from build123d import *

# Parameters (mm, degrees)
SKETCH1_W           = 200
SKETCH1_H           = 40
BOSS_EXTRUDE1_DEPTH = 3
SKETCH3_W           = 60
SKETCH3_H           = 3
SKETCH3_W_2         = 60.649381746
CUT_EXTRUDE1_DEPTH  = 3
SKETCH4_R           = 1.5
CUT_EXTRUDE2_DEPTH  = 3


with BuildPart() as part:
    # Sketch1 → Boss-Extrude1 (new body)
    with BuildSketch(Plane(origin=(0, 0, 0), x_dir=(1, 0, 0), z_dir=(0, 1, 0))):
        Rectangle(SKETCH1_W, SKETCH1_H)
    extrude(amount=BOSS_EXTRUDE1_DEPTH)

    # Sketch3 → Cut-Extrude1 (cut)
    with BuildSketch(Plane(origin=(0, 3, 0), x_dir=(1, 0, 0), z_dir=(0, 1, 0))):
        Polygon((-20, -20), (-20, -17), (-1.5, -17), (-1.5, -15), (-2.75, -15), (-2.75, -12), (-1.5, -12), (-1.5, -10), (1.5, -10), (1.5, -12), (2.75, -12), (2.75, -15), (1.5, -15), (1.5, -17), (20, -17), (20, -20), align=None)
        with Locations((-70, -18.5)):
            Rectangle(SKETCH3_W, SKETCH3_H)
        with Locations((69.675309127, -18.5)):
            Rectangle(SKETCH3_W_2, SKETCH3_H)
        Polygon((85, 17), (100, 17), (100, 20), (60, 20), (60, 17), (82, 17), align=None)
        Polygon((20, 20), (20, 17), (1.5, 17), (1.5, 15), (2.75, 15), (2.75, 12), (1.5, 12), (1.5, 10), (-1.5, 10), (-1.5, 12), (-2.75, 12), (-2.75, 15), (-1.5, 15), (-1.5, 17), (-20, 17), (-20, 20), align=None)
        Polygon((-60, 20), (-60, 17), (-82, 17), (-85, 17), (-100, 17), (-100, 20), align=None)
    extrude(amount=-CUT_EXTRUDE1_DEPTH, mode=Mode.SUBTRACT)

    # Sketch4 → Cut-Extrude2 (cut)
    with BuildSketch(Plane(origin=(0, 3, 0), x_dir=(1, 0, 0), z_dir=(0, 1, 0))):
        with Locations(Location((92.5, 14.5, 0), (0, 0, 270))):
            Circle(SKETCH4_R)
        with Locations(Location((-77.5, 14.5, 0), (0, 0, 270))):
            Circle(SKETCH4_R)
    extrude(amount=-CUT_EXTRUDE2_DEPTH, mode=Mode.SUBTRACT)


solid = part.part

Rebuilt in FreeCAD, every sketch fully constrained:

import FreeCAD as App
import Part
import Sketcher
from FreeCAD import Vector
Q = App.Units.Quantity

doc = App.newDocument("Part")
body = doc.addObject("PartDesign::Body", "Body")

sketch1 = doc.addObject("Sketcher::SketchObject", "Sketch")
body.addObject(sketch1)
sketch1.AttachmentSupport = (doc.XZ_Plane, [""])
sketch1.MapMode = "FlatFace"
sketch1.addGeometry(Part.LineSegment(Vector(-100, -20, 0), Vector(-100, 20, 0)), False)
sketch1.addGeometry(Part.LineSegment(Vector(-100, 20, 0), Vector(100, 20, 0)), False)
sketch1.addGeometry(Part.LineSegment(Vector(100, 20, 0), Vector(100, -20, 0)), False)
sketch1.addGeometry(Part.LineSegment(Vector(100, -20, 0), Vector(-100, -20, 0)), False)
sketch1.addConstraint(Sketcher.Constraint("Coincident", 0, 2, 1, 1))
sketch1.addConstraint(Sketcher.Constraint("Coincident", 1, 2, 2, 1))
sketch1.addConstraint(Sketcher.Constraint("Coincident", 2, 2, 3, 1))
sketch1.addConstraint(Sketcher.Constraint("Coincident", 3, 2, 0, 1))
sketch1.addConstraint(Sketcher.Constraint("Vertical", 0))
sketch1.addConstraint(Sketcher.Constraint("Horizontal", 1))
sketch1.addConstraint(Sketcher.Constraint("Vertical", 2))
sketch1.addConstraint(Sketcher.Constraint("Horizontal", 3))
sketch1.addConstraint(Sketcher.Constraint("Symmetric", 0, 2, 2, 2, -1, 1))
sketch1.addConstraint(Sketcher.Constraint("DistanceX", 1, 1, 1, 2, Q("200 mm")))
sketch1.addConstraint(Sketcher.Constraint("DistanceY", 0, 1, 0, 2, Q("40 mm")))
pad1 = doc.addObject("PartDesign::Pad", "Pad")
body.addObject(pad1)
pad1.Profile = sketch1
pad1.Length = 3
pad1.Reversed = True

sketch2 = doc.addObject("Sketcher::SketchObject", "Sketch001")
body.addObject(sketch2)
sketch2.AttachmentSupport = (doc.XZ_Plane, [""])
sketch2.MapMode = "FlatFace"
sketch2.AttachmentOffset = App.Placement(Vector(0, 0, -3), App.Rotation())
sketch2.addGeometry(Part.LineSegment(Vector(-20, 17, 0), Vector(-20, 20, 0)), False)
sketch2.addGeometry(Part.LineSegment(Vector(-20, 20, 0), Vector(20, 20, 0)), False)
sketch2.addGeometry(Part.LineSegment(Vector(20, 20, 0), Vector(20, 17, 0)), False)
sketch2.addGeometry(Part.LineSegment(Vector(20, 17, 0), Vector(1.5, 17, 0)), False)
sketch2.addGeometry(Part.LineSegment(Vector(1.5, 17, 0), Vector(1.5, 15, 0)), False)
sketch2.addGeometry(Part.LineSegment(Vector(1.5, 15, 0), Vector(2.75, 15, 0)), False)
sketch2.addGeometry(Part.LineSegment(Vector(2.75, 15, 0), Vector(2.75, 12, 0)), False)
sketch2.addGeometry(Part.LineSegment(Vector(2.75, 12, 0), Vector(1.5, 12, 0)), False)
sketch2.addGeometry(Part.LineSegment(Vector(1.5, 12, 0), Vector(1.5, 10, 0)), False)
sketch2.addGeometry(Part.LineSegment(Vector(1.5, 10, 0), Vector(-1.5, 10, 0)), False)
sketch2.addGeometry(Part.LineSegment(Vector(-1.5, 10, 0), Vector(-1.5, 12, 0)), False)
sketch2.addGeometry(Part.LineSegment(Vector(-1.5, 12, 0), Vector(-2.75, 12, 0)), False)
sketch2.addGeometry(Part.LineSegment(Vector(-2.75, 12, 0), Vector(-2.75, 15, 0)), False)
sketch2.addGeometry(Part.LineSegment(Vector(-2.75, 15, 0), Vector(-1.5, 15, 0)), False)
sketch2.addGeometry(Part.LineSegment(Vector(-1.5, 15, 0), Vector(-1.5, 17, 0)), False)
sketch2.addGeometry(Part.LineSegment(Vector(-1.5, 17, 0), Vector(-20, 17, 0)), False)
sketch2.addGeometry(Part.LineSegment(Vector(-100, 17, 0), Vector(-100, 20, 0)), False)
sketch2.addGeometry(Part.LineSegment(Vector(-100, 20, 0), Vector(-40, 20, 0)), False)
sketch2.addGeometry(Part.LineSegment(Vector(-40, 20, 0), Vector(-40, 17, 0)), False)
sketch2.addGeometry(Part.LineSegment(Vector(-40, 17, 0), Vector(-100, 17, 0)), False)
sketch2.addGeometry(Part.LineSegment(Vector(39.350618, 17, 0), Vector(39.350618, 20, 0)), False)
sketch2.addGeometry(Part.LineSegment(Vector(39.350618, 20, 0), Vector(100, 20, 0)), False)
sketch2.addGeometry(Part.LineSegment(Vector(100, 20, 0), Vector(100, 17, 0)), False)
sketch2.addGeometry(Part.LineSegment(Vector(100, 17, 0), Vector(39.350618, 17, 0)), False)
sketch2.addGeometry(Part.LineSegment(Vector(100, -17, 0), Vector(100, -20, 0)), False)
sketch2.addGeometry(Part.LineSegment(Vector(100, -20, 0), Vector(60, -20, 0)), False)
sketch2.addGeometry(Part.LineSegment(Vector(60, -20, 0), Vector(60, -17, 0)), False)
sketch2.addGeometry(Part.LineSegment(Vector(60, -17, 0), Vector(100, -17, 0)), False)
sketch2.addGeometry(Part.LineSegment(Vector(20, -17, 0), Vector(20, -20, 0)), False)
sketch2.addGeometry(Part.LineSegment(Vector(20, -20, 0), Vector(-20, -20, 0)), False)
sketch2.addGeometry(Part.LineSegment(Vector(-20, -20, 0), Vector(-20, -17, 0)), False)
sketch2.addGeometry(Part.LineSegment(Vector(-20, -17, 0), Vector(-1.5, -17, 0)), False)
sketch2.addGeometry(Part.LineSegment(Vector(-1.5, -17, 0), Vector(-1.5, -15, 0)), False)
sketch2.addGeometry(Part.LineSegment(Vector(-1.5, -15, 0), Vector(-2.75, -15, 0)), False)
sketch2.addGeometry(Part.LineSegment(Vector(-2.75, -15, 0), Vector(-2.75, -12, 0)), False)
sketch2.addGeometry(Part.LineSegment(Vector(-2.75, -12, 0), Vector(-1.5, -12, 0)), False)
sketch2.addGeometry(Part.LineSegment(Vector(-1.5, -12, 0), Vector(-1.5, -10, 0)), False)
sketch2.addGeometry(Part.LineSegment(Vector(-1.5, -10, 0), Vector(1.5, -10, 0)), False)
sketch2.addGeometry(Part.LineSegment(Vector(1.5, -10, 0), Vector(1.5, -12, 0)), False)
sketch2.addGeometry(Part.LineSegment(Vector(1.5, -12, 0), Vector(2.75, -12, 0)), False)
sketch2.addGeometry(Part.LineSegment(Vector(2.75, -12, 0), Vector(2.75, -15, 0)), False)
sketch2.addGeometry(Part.LineSegment(Vector(2.75, -15, 0), Vector(1.5, -15, 0)), False)
sketch2.addGeometry(Part.LineSegment(Vector(1.5, -15, 0), Vector(1.5, -17, 0)), False)
sketch2.addGeometry(Part.LineSegment(Vector(1.5, -17, 0), Vector(20, -17, 0)), False)
sketch2.addGeometry(Part.LineSegment(Vector(-60, -17, 0), Vector(-60, -20, 0)), False)
sketch2.addGeometry(Part.LineSegment(Vector(-60, -20, 0), Vector(-100, -20, 0)), False)
sketch2.addGeometry(Part.LineSegment(Vector(-100, -20, 0), Vector(-100, -17, 0)), False)
sketch2.addGeometry(Part.LineSegment(Vector(-100, -17, 0), Vector(-60, -17, 0)), False)
sketch2.addConstraint(Sketcher.Constraint("Coincident", 0, 2, 1, 1))
sketch2.addConstraint(Sketcher.Constraint("Coincident", 1, 2, 2, 1))
sketch2.addConstraint(Sketcher.Constraint("Coincident", 2, 2, 3, 1))
sketch2.addConstraint(Sketcher.Constraint("Coincident", 3, 2, 4, 1))
sketch2.addConstraint(Sketcher.Constraint("Coincident", 4, 2, 5, 1))
sketch2.addConstraint(Sketcher.Constraint("Coincident", 5, 2, 6, 1))
sketch2.addConstraint(Sketcher.Constraint("Coincident", 6, 2, 7, 1))
sketch2.addConstraint(Sketcher.Constraint("Coincident", 7, 2, 8, 1))
sketch2.addConstraint(Sketcher.Constraint("Coincident", 8, 2, 9, 1))
sketch2.addConstraint(Sketcher.Constraint("Coincident", 9, 2, 10, 1))
sketch2.addConstraint(Sketcher.Constraint("Coincident", 10, 2, 11, 1))
sketch2.addConstraint(Sketcher.Constraint("Coincident", 11, 2, 12, 1))
sketch2.addConstraint(Sketcher.Constraint("Coincident", 12, 2, 13, 1))
sketch2.addConstraint(Sketcher.Constraint("Coincident", 13, 2, 14, 1))
sketch2.addConstraint(Sketcher.Constraint("Coincident", 14, 2, 15, 1))
sketch2.addConstraint(Sketcher.Constraint("Coincident", 15, 2, 0, 1))
sketch2.addConstraint(Sketcher.Constraint("Coincident", 16, 2, 17, 1))
sketch2.addConstraint(Sketcher.Constraint("Coincident", 17, 2, 18, 1))
sketch2.addConstraint(Sketcher.Constraint("Coincident", 18, 2, 19, 1))
sketch2.addConstraint(Sketcher.Constraint("Coincident", 19, 2, 16, 1))
sketch2.addConstraint(Sketcher.Constraint("Coincident", 20, 2, 21, 1))
sketch2.addConstraint(Sketcher.Constraint("Coincident", 21, 2, 22, 1))
sketch2.addConstraint(Sketcher.Constraint("Coincident", 22, 2, 23, 1))
sketch2.addConstraint(Sketcher.Constraint("Coincident", 23, 2, 20, 1))
sketch2.addConstraint(Sketcher.Constraint("Coincident", 24, 2, 25, 1))
sketch2.addConstraint(Sketcher.Constraint("Coincident", 25, 2, 26, 1))
sketch2.addConstraint(Sketcher.Constraint("Coincident", 26, 2, 27, 1))
sketch2.addConstraint(Sketcher.Constraint("Coincident", 27, 2, 24, 1))
sketch2.addConstraint(Sketcher.Constraint("Coincident", 28, 2, 29, 1))
sketch2.addConstraint(Sketcher.Constraint("Coincident", 29, 2, 30, 1))
sketch2.addConstraint(Sketcher.Constraint("Coincident", 30, 2, 31, 1))
sketch2.addConstraint(Sketcher.Constraint("Coincident", 31, 2, 32, 1))
sketch2.addConstraint(Sketcher.Constraint("Coincident", 32, 2, 33, 1))
sketch2.addConstraint(Sketcher.Constraint("Coincident", 33, 2, 34, 1))
sketch2.addConstraint(Sketcher.Constraint("Coincident", 34, 2, 35, 1))
sketch2.addConstraint(Sketcher.Constraint("Coincident", 35, 2, 36, 1))
sketch2.addConstraint(Sketcher.Constraint("Coincident", 36, 2, 37, 1))
sketch2.addConstraint(Sketcher.Constraint("Coincident", 37, 2, 38, 1))
sketch2.addConstraint(Sketcher.Constraint("Coincident", 38, 2, 39, 1))
sketch2.addConstraint(Sketcher.Constraint("Coincident", 39, 2, 40, 1))
sketch2.addConstraint(Sketcher.Constraint("Coincident", 40, 2, 41, 1))
sketch2.addConstraint(Sketcher.Constraint("Coincident", 41, 2, 42, 1))
sketch2.addConstraint(Sketcher.Constraint("Coincident", 42, 2, 43, 1))
sketch2.addConstraint(Sketcher.Constraint("Coincident", 43, 2, 28, 1))
sketch2.addConstraint(Sketcher.Constraint("Coincident", 44, 2, 45, 1))
sketch2.addConstraint(Sketcher.Constraint("Coincident", 45, 2, 46, 1))
sketch2.addConstraint(Sketcher.Constraint("Coincident", 46, 2, 47, 1))
sketch2.addConstraint(Sketcher.Constraint("Coincident", 47, 2, 44, 1))
sketch2.addConstraint(Sketcher.Constraint("Vertical", 0))
sketch2.addConstraint(Sketcher.Constraint("Horizontal", 1))
sketch2.addConstraint(Sketcher.Constraint("Vertical", 2))
sketch2.addConstraint(Sketcher.Constraint("Horizontal", 3))
sketch2.addConstraint(Sketcher.Constraint("Vertical", 4))
sketch2.addConstraint(Sketcher.Constraint("Horizontal", 5))
sketch2.addConstraint(Sketcher.Constraint("Vertical", 6))
sketch2.addConstraint(Sketcher.Constraint("Horizontal", 7))
sketch2.addConstraint(Sketcher.Constraint("Vertical", 8))
sketch2.addConstraint(Sketcher.Constraint("Horizontal", 9))
sketch2.addConstraint(Sketcher.Constraint("Vertical", 10))
sketch2.addConstraint(Sketcher.Constraint("Horizontal", 11))
sketch2.addConstraint(Sketcher.Constraint("Vertical", 12))
sketch2.addConstraint(Sketcher.Constraint("Horizontal", 13))
sketch2.addConstraint(Sketcher.Constraint("Vertical", 14))
sketch2.addConstraint(Sketcher.Constraint("Horizontal", 15))
sketch2.addConstraint(Sketcher.Constraint("Vertical", 16))
sketch2.addConstraint(Sketcher.Constraint("Horizontal", 17))
sketch2.addConstraint(Sketcher.Constraint("Vertical", 18))
sketch2.addConstraint(Sketcher.Constraint("Horizontal", 19))
sketch2.addConstraint(Sketcher.Constraint("Vertical", 20))
sketch2.addConstraint(Sketcher.Constraint("Horizontal", 21))
sketch2.addConstraint(Sketcher.Constraint("Vertical", 22))
sketch2.addConstraint(Sketcher.Constraint("Horizontal", 23))
sketch2.addConstraint(Sketcher.Constraint("Vertical", 24))
sketch2.addConstraint(Sketcher.Constraint("Horizontal", 25))
sketch2.addConstraint(Sketcher.Constraint("Vertical", 26))
sketch2.addConstraint(Sketcher.Constraint("Horizontal", 27))
sketch2.addConstraint(Sketcher.Constraint("Vertical", 28))
sketch2.addConstraint(Sketcher.Constraint("Horizontal", 29))
sketch2.addConstraint(Sketcher.Constraint("Vertical", 30))
sketch2.addConstraint(Sketcher.Constraint("Horizontal", 31))
sketch2.addConstraint(Sketcher.Constraint("Vertical", 32))
sketch2.addConstraint(Sketcher.Constraint("Horizontal", 33))
sketch2.addConstraint(Sketcher.Constraint("Vertical", 34))
sketch2.addConstraint(Sketcher.Constraint("Horizontal", 35))
sketch2.addConstraint(Sketcher.Constraint("Vertical", 36))
sketch2.addConstraint(Sketcher.Constraint("Horizontal", 37))
sketch2.addConstraint(Sketcher.Constraint("Vertical", 38))
sketch2.addConstraint(Sketcher.Constraint("Horizontal", 39))
sketch2.addConstraint(Sketcher.Constraint("Vertical", 40))
sketch2.addConstraint(Sketcher.Constraint("Horizontal", 41))
sketch2.addConstraint(Sketcher.Constraint("Vertical", 42))
sketch2.addConstraint(Sketcher.Constraint("Horizontal", 43))
sketch2.addConstraint(Sketcher.Constraint("Vertical", 44))
sketch2.addConstraint(Sketcher.Constraint("Horizontal", 45))
sketch2.addConstraint(Sketcher.Constraint("Vertical", 46))
sketch2.addConstraint(Sketcher.Constraint("Horizontal", 47))
sketch2.addConstraint(Sketcher.Constraint("Symmetric", 16, 2, 24, 2, -1, 1))
sketch2.addConstraint(Sketcher.Constraint("Symmetric", 0, 2, 28, 2, -1, 1))
sketch2.addConstraint(Sketcher.Constraint("Symmetric", 2, 2, 30, 2, -1, 1))
sketch2.addConstraint(Sketcher.Constraint("Symmetric", 4, 2, 32, 2, -1, 1))
sketch2.addConstraint(Sketcher.Constraint("Symmetric", 6, 2, 34, 2, -1, 1))
sketch2.addConstraint(Sketcher.Constraint("Symmetric", 8, 2, 36, 2, -1, 1))
sketch2.addConstraint(Sketcher.Constraint("Symmetric", 10, 2, 38, 2, -1, 1))
sketch2.addConstraint(Sketcher.Constraint("Symmetric", 12, 2, 40, 2, -1, 1))
sketch2.addConstraint(Sketcher.Constraint("Symmetric", 14, 2, 42, 2, -1, 1))
sketch2.addConstraint(Sketcher.Constraint("Symmetric", 21, 2, 45, 2, -1, 1))
sketch2.addConstraint(Sketcher.Constraint("Symmetric", 7, 2, 10, 2, -2))
sketch2.addConstraint(Sketcher.Constraint("Symmetric", 5, 2, 12, 2, -2))
sketch2.addConstraint(Sketcher.Constraint("Symmetric", 3, 2, 14, 2, -2))
sketch2.addConstraint(Sketcher.Constraint("Symmetric", 16, 2, 21, 2, -2))
sketch2.addConstraint(Sketcher.Constraint("Symmetric", 26, 2, 47, 2, -2))
sketch2.addConstraint(Sketcher.Constraint("Horizontal", 1, 2, 16, 2))
sketch2.addConstraint(Sketcher.Constraint("Horizontal", 15, 2, 18, 2))
sketch2.addConstraint(Sketcher.Constraint("Horizontal", 19, 2, 22, 2))
sketch2.addConstraint(Sketcher.Constraint("Horizontal", 27, 2, 30, 2))
sketch2.addConstraint(Sketcher.Constraint("Vertical", 4, 2, 7, 2))
sketch2.addConstraint(Sketcher.Constraint("Vertical", 2, 2, 28, 2))
sketch2.addConstraint(Sketcher.Constraint("Equal", 1, 25))
sketch2.addConstraint(Sketcher.Constraint("Equal", 37, 0))
sketch2.addConstraint(Sketcher.Constraint("Equal", 2, 6))
sketch2.addConstraint(Sketcher.Constraint("Equal", 4, 8))
sketch2.addConstraint(Sketcher.Constraint("DistanceX", 1, 1, 1, 2, Q("40 mm")))
sketch2.addConstraint(Sketcher.Constraint("DistanceX", 9, 2, 9, 1, Q("3 mm")))
sketch2.addConstraint(Sketcher.Constraint("DistanceX", 17, 1, 17, 2, Q("60 mm")))
sketch2.addConstraint(Sketcher.Constraint("DistanceY", 4, 2, 4, 1, Q("2 mm")))
sketch2.addConstraint(Sketcher.Constraint("DistanceY", -1, 1, 0, 2, Q("20 mm")))
sketch2.addConstraint(Sketcher.Constraint("DistanceX", 16, 2, -1, 1, Q("100 mm")))
sketch2.addConstraint(Sketcher.Constraint("DistanceX", 5, 1, 5, 2, Q("1.25 mm")))
sketch2.addConstraint(Sketcher.Constraint("DistanceX", 21, 1, 21, 2, Q("60.649382 mm")))
pocket1 = doc.addObject("PartDesign::Pocket", "Pocket")
body.addObject(pocket1)
pocket1.Profile = sketch2
pocket1.Length = 3
pocket1.Reversed = True

sketch3 = doc.addObject("Sketcher::SketchObject", "Sketch002")
body.addObject(sketch3)
sketch3.AttachmentSupport = (doc.XZ_Plane, [""])
sketch3.MapMode = "FlatFace"
sketch3.AttachmentOffset = App.Placement(Vector(0, 0, -3), App.Rotation())
sketch3.addGeometry(Part.Circle(Vector(92.5, -14.5, 0), Vector(0, 0, 1), 1.5), False)
sketch3.addGeometry(Part.Circle(Vector(-77.5, -14.5, 0), Vector(0, 0, 1), 1.5), False)
sketch3.addConstraint(Sketcher.Constraint("Equal", 0, 1))
sketch3.addConstraint(Sketcher.Constraint("Horizontal", 0, 3, 1, 3))
sketch3.addConstraint(Sketcher.Constraint("Diameter", 0, Q("3 mm")))
sketch3.addConstraint(Sketcher.Constraint("DistanceX", 1, 3, 0, 3, Q("170 mm")))
sketch3.addConstraint(Sketcher.Constraint("DistanceX", -1, 1, 0, 3, Q("92.5 mm")))
sketch3.addConstraint(Sketcher.Constraint("DistanceY", 0, 3, -1, 1, Q("14.5 mm")))
pocket2 = doc.addObject("PartDesign::Pocket", "Pocket001")
body.addObject(pocket2)
pocket2.Profile = sketch3
pocket2.Length = 3
pocket2.Reversed = True

doc.recompute()
